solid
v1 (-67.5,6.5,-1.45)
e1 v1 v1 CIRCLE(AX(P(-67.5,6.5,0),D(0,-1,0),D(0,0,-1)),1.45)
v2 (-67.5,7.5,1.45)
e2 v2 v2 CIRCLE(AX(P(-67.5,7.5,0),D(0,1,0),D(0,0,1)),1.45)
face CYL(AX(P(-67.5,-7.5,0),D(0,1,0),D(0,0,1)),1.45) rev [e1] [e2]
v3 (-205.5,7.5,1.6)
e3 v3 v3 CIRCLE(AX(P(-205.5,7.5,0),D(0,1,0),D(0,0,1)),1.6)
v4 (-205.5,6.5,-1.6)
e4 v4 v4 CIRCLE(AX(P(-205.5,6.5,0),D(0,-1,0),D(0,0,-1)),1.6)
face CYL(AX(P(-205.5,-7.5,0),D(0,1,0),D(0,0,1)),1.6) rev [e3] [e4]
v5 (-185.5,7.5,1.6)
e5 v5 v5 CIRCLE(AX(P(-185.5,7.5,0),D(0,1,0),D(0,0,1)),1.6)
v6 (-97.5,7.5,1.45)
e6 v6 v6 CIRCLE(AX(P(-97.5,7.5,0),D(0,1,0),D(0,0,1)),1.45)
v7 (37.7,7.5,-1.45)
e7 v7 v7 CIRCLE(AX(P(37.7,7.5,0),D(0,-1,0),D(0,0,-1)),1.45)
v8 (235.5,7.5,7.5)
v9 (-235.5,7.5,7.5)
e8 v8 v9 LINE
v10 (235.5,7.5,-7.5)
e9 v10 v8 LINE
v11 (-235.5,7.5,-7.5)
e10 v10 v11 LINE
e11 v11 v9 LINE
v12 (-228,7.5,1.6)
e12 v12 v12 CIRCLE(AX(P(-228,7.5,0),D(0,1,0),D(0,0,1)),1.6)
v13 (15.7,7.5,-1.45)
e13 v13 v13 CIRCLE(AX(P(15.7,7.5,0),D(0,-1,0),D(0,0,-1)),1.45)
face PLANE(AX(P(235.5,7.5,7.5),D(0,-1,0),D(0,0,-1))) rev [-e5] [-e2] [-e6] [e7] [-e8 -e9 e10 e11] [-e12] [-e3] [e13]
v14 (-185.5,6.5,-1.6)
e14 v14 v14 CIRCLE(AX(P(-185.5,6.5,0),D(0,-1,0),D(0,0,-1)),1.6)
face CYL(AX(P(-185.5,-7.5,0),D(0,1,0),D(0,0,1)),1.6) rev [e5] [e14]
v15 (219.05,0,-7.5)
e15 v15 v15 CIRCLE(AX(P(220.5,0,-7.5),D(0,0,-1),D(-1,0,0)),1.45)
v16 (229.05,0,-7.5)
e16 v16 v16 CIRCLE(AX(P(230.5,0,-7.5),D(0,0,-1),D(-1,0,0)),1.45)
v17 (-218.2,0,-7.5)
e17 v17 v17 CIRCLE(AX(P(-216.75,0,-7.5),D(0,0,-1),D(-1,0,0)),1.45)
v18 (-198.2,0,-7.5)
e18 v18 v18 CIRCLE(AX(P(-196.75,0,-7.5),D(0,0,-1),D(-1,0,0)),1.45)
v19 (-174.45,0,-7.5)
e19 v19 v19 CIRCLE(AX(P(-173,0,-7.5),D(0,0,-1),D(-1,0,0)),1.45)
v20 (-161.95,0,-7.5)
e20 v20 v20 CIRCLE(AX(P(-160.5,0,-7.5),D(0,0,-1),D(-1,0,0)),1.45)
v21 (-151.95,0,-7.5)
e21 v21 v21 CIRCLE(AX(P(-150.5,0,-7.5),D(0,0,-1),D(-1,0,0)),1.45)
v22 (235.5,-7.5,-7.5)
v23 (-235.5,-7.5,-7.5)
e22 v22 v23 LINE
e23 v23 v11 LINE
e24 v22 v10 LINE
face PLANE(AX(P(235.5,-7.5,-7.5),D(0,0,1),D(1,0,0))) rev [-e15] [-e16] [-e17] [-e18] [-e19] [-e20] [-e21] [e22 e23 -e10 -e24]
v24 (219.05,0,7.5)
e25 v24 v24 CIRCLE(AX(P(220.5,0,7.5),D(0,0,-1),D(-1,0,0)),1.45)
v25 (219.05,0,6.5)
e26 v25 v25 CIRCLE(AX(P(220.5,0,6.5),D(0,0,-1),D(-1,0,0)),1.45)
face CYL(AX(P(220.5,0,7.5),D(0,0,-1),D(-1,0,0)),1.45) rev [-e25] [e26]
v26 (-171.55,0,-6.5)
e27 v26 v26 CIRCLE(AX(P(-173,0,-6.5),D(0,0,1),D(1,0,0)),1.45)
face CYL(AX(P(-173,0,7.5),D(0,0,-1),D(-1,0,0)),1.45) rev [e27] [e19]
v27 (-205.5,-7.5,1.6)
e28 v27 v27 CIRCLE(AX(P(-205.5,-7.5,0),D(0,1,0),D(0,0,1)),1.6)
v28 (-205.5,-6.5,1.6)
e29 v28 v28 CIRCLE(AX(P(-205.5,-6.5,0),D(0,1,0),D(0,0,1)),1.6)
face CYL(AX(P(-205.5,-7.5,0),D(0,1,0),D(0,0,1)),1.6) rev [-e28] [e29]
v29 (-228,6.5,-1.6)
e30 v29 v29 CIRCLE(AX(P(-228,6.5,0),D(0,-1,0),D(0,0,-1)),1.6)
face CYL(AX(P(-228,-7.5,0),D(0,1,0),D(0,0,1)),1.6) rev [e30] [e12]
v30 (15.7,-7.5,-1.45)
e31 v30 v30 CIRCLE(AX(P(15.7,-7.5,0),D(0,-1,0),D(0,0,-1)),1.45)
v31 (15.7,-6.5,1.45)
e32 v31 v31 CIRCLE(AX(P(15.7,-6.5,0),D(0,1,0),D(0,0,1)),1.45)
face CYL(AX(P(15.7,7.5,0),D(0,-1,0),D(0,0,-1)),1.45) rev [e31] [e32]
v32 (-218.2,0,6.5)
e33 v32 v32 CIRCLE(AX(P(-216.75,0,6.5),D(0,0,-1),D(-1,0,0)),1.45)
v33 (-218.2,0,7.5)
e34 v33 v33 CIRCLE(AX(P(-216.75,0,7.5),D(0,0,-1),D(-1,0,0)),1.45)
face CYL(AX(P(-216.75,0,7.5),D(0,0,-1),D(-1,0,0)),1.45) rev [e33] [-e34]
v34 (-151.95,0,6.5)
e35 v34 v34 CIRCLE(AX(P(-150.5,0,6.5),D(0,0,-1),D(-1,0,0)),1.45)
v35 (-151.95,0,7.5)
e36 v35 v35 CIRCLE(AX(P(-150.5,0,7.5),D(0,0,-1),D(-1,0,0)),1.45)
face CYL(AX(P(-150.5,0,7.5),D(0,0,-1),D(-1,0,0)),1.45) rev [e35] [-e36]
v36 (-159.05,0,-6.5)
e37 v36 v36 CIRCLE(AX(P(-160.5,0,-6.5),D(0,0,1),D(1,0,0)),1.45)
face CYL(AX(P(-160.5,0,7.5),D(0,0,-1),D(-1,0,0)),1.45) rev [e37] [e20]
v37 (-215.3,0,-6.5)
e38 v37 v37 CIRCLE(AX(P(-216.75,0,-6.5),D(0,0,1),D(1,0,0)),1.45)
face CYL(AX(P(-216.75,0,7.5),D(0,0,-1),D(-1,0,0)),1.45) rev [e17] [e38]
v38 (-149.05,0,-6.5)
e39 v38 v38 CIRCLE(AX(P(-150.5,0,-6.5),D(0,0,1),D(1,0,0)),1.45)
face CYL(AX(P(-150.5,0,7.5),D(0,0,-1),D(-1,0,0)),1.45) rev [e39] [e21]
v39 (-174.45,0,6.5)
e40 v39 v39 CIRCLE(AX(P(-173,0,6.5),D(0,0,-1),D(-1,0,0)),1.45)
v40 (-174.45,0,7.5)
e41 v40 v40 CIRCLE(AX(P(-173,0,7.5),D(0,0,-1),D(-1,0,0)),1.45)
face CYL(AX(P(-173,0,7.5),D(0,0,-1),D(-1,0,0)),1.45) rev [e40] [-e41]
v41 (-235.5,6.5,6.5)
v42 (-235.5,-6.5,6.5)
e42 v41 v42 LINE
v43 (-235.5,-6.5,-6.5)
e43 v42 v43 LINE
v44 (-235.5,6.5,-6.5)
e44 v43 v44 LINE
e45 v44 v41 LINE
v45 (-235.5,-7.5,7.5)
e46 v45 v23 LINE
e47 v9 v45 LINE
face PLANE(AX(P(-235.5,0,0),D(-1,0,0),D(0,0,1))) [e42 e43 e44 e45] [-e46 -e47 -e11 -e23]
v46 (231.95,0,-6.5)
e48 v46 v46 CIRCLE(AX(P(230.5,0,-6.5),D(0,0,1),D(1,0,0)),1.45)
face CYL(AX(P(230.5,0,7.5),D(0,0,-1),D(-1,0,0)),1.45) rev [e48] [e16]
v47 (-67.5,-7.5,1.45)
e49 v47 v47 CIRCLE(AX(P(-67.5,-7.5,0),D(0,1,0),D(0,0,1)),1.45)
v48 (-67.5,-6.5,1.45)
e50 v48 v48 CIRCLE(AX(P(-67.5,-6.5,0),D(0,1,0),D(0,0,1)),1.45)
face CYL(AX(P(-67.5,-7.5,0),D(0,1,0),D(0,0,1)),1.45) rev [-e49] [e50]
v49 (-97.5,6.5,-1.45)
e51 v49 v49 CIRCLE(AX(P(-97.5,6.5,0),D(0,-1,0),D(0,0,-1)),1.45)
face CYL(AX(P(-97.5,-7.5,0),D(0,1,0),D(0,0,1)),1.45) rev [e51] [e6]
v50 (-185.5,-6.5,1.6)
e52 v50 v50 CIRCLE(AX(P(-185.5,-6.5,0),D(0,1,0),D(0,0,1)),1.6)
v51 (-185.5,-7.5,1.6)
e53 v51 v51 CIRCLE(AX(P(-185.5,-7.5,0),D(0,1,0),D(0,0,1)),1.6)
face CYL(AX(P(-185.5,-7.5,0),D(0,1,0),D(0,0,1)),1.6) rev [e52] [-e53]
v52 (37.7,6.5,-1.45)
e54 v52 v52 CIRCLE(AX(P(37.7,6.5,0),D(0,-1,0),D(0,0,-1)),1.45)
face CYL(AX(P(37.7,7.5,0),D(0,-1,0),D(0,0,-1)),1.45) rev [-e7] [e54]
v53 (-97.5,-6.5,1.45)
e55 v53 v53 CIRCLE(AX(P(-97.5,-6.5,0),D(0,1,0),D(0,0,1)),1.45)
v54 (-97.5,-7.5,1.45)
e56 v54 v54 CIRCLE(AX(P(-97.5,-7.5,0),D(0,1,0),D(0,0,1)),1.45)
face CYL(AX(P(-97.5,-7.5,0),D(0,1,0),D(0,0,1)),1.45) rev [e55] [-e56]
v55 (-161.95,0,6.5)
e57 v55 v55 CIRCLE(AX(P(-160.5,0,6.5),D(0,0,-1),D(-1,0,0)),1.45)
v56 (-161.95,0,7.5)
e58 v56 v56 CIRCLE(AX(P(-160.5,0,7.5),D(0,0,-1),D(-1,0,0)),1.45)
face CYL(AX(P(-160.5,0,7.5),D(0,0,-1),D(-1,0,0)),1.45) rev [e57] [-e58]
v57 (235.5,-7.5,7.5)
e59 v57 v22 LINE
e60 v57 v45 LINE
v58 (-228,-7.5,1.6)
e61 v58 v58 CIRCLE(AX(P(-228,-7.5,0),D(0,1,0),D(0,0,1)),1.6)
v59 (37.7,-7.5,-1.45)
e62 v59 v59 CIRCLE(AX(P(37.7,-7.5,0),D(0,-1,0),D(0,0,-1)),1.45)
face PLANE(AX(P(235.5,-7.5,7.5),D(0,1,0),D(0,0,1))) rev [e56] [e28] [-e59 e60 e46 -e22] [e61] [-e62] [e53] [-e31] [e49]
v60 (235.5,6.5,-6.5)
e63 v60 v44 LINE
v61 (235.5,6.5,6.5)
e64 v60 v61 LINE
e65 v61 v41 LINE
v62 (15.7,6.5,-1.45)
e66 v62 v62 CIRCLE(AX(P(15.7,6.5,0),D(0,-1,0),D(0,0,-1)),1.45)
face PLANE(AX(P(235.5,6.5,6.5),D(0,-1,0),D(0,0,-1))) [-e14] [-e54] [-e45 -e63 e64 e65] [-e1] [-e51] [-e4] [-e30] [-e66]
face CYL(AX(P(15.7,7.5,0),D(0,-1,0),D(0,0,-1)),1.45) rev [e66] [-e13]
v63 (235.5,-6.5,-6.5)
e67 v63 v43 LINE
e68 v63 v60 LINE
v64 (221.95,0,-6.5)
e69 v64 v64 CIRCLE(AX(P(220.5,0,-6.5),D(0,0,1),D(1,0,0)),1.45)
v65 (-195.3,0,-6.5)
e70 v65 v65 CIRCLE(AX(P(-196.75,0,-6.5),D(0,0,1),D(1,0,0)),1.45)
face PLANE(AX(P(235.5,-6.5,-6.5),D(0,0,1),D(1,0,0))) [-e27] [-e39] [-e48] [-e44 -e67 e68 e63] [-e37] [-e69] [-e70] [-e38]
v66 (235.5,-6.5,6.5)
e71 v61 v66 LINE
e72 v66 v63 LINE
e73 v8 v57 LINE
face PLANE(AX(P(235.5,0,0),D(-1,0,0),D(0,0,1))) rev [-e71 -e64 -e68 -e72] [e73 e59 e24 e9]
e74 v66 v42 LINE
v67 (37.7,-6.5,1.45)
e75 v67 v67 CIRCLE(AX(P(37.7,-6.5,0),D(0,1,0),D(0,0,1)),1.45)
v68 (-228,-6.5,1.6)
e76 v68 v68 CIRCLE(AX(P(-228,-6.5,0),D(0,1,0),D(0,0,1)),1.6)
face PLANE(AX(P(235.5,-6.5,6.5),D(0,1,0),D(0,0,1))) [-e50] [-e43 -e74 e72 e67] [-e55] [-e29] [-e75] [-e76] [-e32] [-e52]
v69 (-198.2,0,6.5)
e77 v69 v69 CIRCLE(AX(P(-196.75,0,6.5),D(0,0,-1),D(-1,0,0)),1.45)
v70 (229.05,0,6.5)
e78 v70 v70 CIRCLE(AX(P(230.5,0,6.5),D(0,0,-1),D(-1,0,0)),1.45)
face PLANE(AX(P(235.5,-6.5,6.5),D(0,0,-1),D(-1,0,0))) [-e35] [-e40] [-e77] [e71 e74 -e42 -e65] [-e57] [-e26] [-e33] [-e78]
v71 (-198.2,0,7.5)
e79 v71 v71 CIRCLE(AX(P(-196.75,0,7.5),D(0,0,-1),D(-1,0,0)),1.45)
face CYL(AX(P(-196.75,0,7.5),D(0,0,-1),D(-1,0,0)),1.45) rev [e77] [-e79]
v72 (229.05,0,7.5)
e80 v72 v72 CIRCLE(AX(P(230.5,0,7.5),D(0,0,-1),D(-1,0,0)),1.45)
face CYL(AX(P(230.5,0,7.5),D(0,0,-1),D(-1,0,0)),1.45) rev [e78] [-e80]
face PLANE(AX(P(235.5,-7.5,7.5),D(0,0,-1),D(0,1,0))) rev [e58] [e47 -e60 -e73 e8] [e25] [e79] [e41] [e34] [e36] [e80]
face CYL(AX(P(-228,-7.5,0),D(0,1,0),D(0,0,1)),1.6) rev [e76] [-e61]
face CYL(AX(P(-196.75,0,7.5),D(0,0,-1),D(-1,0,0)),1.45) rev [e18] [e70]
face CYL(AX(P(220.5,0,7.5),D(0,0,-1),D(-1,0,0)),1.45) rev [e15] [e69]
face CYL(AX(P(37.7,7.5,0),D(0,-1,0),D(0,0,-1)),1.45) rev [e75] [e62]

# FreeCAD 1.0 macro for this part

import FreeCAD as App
import Part
import Sketcher

V = App.Vector
Q = App.Units.Quantity

doc = App.newDocument("Part")
body = doc.addObject("PartDesign::Body", "Body")

# Sketch on YZ plane
sketch1 = doc.addObject("Sketcher::SketchObject", "Sketch")
body.addObject(sketch1)
sketch1.AttachmentSupport = (doc.YZ_Plane, [""])
sketch1.MapMode = "FlatFace"
sketch1.AttachmentOffset = App.Placement(V(0, 0, -235.5), App.Rotation())
sketch1.addGeometry([
    Part.LineSegment(V(7.5, 7.5, 0), V(-7.5, 7.5, 0)),  # 0
    Part.LineSegment(V(-7.5, 7.5, 0), V(-7.5, -7.5, 0)),  # 1
    Part.LineSegment(V(-7.5, -7.5, 0), V(7.5, -7.5, 0)),  # 2
    Part.LineSegment(V(7.5, -7.5, 0), V(7.5, 7.5, 0)),  # 3
    Part.LineSegment(V(-6.5, -6.5, 0), V(-6.5, 6.5, 0)),  # 4
    Part.LineSegment(V(-6.5, 6.5, 0), V(6.5, 6.5, 0)),  # 5
    Part.LineSegment(V(6.5, 6.5, 0), V(6.5, -6.5, 0)),  # 6
    Part.LineSegment(V(6.5, -6.5, 0), V(-6.5, -6.5, 0)),  # 7
], False)
sketch1.addConstraint([
    Sketcher.Constraint("Coincident", 0, 2, 1, 1),
    Sketcher.Constraint("Coincident", 1, 2, 2, 1),
    Sketcher.Constraint("Coincident", 2, 2, 3, 1),
    Sketcher.Constraint("Coincident", 3, 2, 0, 1),
    Sketcher.Constraint("Coincident", 4, 2, 5, 1),
    Sketcher.Constraint("Coincident", 5, 2, 6, 1),
    Sketcher.Constraint("Coincident", 6, 2, 7, 1),
    Sketcher.Constraint("Coincident", 7, 2, 4, 1),
    Sketcher.Constraint("Horizontal", 0),
    Sketcher.Constraint("Vertical", 1),
    Sketcher.Constraint("Horizontal", 2),
    Sketcher.Constraint("Vertical", 3),
    Sketcher.Constraint("Vertical", 4),
    Sketcher.Constraint("Horizontal", 5),
    Sketcher.Constraint("Vertical", 6),
    Sketcher.Constraint("Horizontal", 7),
    Sketcher.Constraint("Symmetric", 0, 2, 2, 2, -1, 1),
    Sketcher.Constraint("Symmetric", 4, 2, 6, 2, -1, 1),
    Sketcher.Constraint("Equal", 2, 1),
    Sketcher.Constraint("Equal", 7, 4),
    Sketcher.Constraint("DistanceX", 0, 2, 0, 1, Q("15 mm")),
    Sketcher.Constraint("DistanceX", 5, 1, 5, 2, Q("13 mm")),
])
pad1 = doc.addObject("PartDesign::Pad", "Pad")
body.addObject(pad1)
pad1.Profile = sketch1
pad1.Length = 471

# Sketch on XZ plane
sketch2 = doc.addObject("Sketcher::SketchObject", "Sketch001")
body.addObject(sketch2)
sketch2.AttachmentSupport = (doc.XZ_Plane, [""])
sketch2.MapMode = "FlatFace"
sketch2.AttachmentOffset = App.Placement(V(0, 0, -7.5), App.Rotation())
sketch2.addGeometry([
    Part.Circle(V(-205.5, 0, 0), V(0, 0, 1), 1.6),
    Part.Circle(V(-185.5, 0, 0), V(0, 0, 1), 1.6),
    Part.Circle(V(-228, 0, 0), V(0, 0, 1), 1.6),
], False)
sketch2.addConstraint([
    Sketcher.Constraint("Equal", 0, 1),
    Sketcher.Constraint("Equal", 1, 2),
    Sketcher.Constraint("PointOnObject", 0, 3, -1),
    Sketcher.Constraint("PointOnObject", 1, 3, -1),
    Sketcher.Constraint("PointOnObject", 2, 3, -1),
    Sketcher.Constraint("Diameter", 0, Q("3.2 mm")),
    Sketcher.Constraint("DistanceX", 2, 3, -1, 1, Q("228 mm")),
    Sketcher.Constraint("DistanceX", 0, 3, 1, 3, Q("20 mm")),
    Sketcher.Constraint("DistanceX", 0, 3, -1, 1, Q("205.5 mm")),
])
pocket1 = doc.addObject("PartDesign::Pocket", "Pocket")
body.addObject(pocket1)
pocket1.Profile = sketch2
pocket1.Type = "ThroughAll"
pocket1.Reversed = True

# Sketch on XZ plane
sketch3 = doc.addObject("Sketcher::SketchObject", "Sketch002")
body.addObject(sketch3)
sketch3.AttachmentSupport = (doc.XZ_Plane, [""])
sketch3.MapMode = "FlatFace"
sketch3.AttachmentOffset = App.Placement(V(0, 0, -7.5), App.Rotation())
sketch3.addGeometry([
    Part.Circle(V(-97.5, 0, 0), V(0, 0, 1), 1.45),
    Part.Circle(V(-67.5, 0, 0), V(0, 0, 1), 1.45),
], False)
sketch3.addConstraint([
    Sketcher.Constraint("Equal", 0, 1),
    Sketcher.Constraint("PointOnObject", 0, 3, -1),
    Sketcher.Constraint("PointOnObject", 1, 3, -1),
    Sketcher.Constraint("Diameter", 0, Q("2.9 mm")),
    Sketcher.Constraint("DistanceX", 0, 3, 1, 3, Q("30 mm")),
    Sketcher.Constraint("DistanceX", 0, 3, -1, 1, Q("97.5 mm")),
])
pocket2 = doc.addObject("PartDesign::Pocket", "Pocket001")
body.addObject(pocket2)
pocket2.Profile = sketch3
pocket2.Type = "ThroughAll"
pocket2.Reversed = True

# Sketch on XY plane
sketch4 = doc.addObject("Sketcher::SketchObject", "Sketch003")
body.addObject(sketch4)
sketch4.AttachmentSupport = (doc.XY_Plane, [""])
sketch4.MapMode = "FlatFace"
sketch4.AttachmentOffset = App.Placement(V(0, 0, -7.5), App.Rotation())
sketch4.addGeometry([
    Part.Circle(V(-216.75, 0, 0), V(0, 0, 1), 1.45),
    Part.Circle(V(-196.75, 0, 0), V(0, 0, 1), 1.45),
], False)
sketch4.addConstraint([
    Sketcher.Constraint("Equal", 0, 1),
    Sketcher.Constraint("PointOnObject", 0, 3, -1),
    Sketcher.Constraint("PointOnObject", 1, 3, -1),
    Sketcher.Constraint("Diameter", 0, Q("2.9 mm")),
    Sketcher.Constraint("DistanceX", 0, 3, 1, 3, Q("20 mm")),
    Sketcher.Constraint("DistanceX", 0, 3, -1, 1, Q("216.75 mm")),
])
pocket3 = doc.addObject("PartDesign::Pocket", "Pocket002")
body.addObject(pocket3)
pocket3.Profile = sketch4
pocket3.Type = "ThroughAll"
pocket3.Reversed = True

# Sketch on XY plane
sketch5 = doc.addObject("Sketcher::SketchObject", "Sketch004")
body.addObject(sketch5)
sketch5.AttachmentSupport = (doc.XY_Plane, [""])
sketch5.MapMode = "FlatFace"
sketch5.AttachmentOffset = App.Placement(V(0, 0, -7.5), App.Rotation())
sketch5.addGeometry([
    Part.Circle(V(-173, 0, 0), V(0, 0, 1), 1.45),
    Part.Circle(V(-160.5, 0, 0), V(0, 0, 1), 1.45),
    Part.Circle(V(-150.5, 0, 0), V(0, 0, 1), 1.45),
], False)
sketch5.addConstraint([
    Sketcher.Constraint("Equal", 0, 1),
    Sketcher.Constraint("Equal", 1, 2),
    Sketcher.Constraint("PointOnObject", 0, 3, -1),
    Sketcher.Constraint("PointOnObject", 1, 3, -1),
    Sketcher.Constraint("PointOnObject", 2, 3, -1),
    Sketcher.Constraint("Diameter", 0, Q("2.9 mm")),
    Sketcher.Constraint("DistanceX", 0, 3, -1, 1, Q("173 mm")),
    Sketcher.Constraint("DistanceX", 1, 3, 2, 3, Q("10 mm")),
    Sketcher.Constraint("DistanceX", 1, 3, -1, 1, Q("160.5 mm")),
])
pocket4 = doc.addObject("PartDesign::Pocket", "Pocket003")
body.addObject(pocket4)
pocket4.Profile = sketch5
pocket4.Type = "ThroughAll"
pocket4.Reversed = True

# Sketch on XY plane
sketch6 = doc.addObject("Sketcher::SketchObject", "Sketch005")
body.addObject(sketch6)
sketch6.AttachmentSupport = (doc.XY_Plane, [""])
sketch6.MapMode = "FlatFace"
sketch6.AttachmentOffset = App.Placement(V(0, 0, -7.5), App.Rotation())
sketch6.addGeometry([
    Part.Circle(V(230.5, 0, 0), V(0, 0, 1), 1.45),
    Part.Circle(V(220.5, 0, 0), V(0, 0, 1), 1.45),
], False)
sketch6.addConstraint([
    Sketcher.Constraint("Equal", 0, 1),
    Sketcher.Constraint("PointOnObject", 0, 3, -1),
    Sketcher.Constraint("PointOnObject", 1, 3, -1),
    Sketcher.Constraint("Diameter", 0, Q("2.9 mm")),
    Sketcher.Constraint("DistanceX", 1, 3, 0, 3, Q("10 mm")),
    Sketcher.Constraint("DistanceX", -1, 1, 0, 3, Q("230.5 mm")),
])
pocket5 = doc.addObject("PartDesign::Pocket", "Pocket004")
body.addObject(pocket5)
pocket5.Profile = sketch6
pocket5.Type = "ThroughAll"
pocket5.Reversed = True

# Sketch on XZ plane
sketch7 = doc.addObject("Sketcher::SketchObject", "Sketch006")
body.addObject(sketch7)
sketch7.AttachmentSupport = (doc.XZ_Plane, [""])
sketch7.MapMode = "FlatFace"
sketch7.AttachmentOffset = App.Placement(V(0, 0, 7.5), App.Rotation())
sketch7.addGeometry([
    Part.Circle(V(15.7, 0, 0), V(0, 0, 1), 1.45),
    Part.Circle(V(37.7, 0, 0), V(0, 0, 1), 1.45),
], False)
sketch7.addConstraint([
    Sketcher.Constraint("Equal", 0, 1),
    Sketcher.Constraint("PointOnObject", 0, 3, -1),
    Sketcher.Constraint("PointOnObject", 1, 3, -1),
    Sketcher.Constraint("Diameter", 0, Q("2.9 mm")),
    Sketcher.Constraint("DistanceX", 0, 3, 1, 3, Q("22 mm")),
    Sketcher.Constraint("DistanceX", -1, 1, 0, 3, Q("15.7 mm")),
])
pocket6 = doc.addObject("PartDesign::Pocket", "Pocket005")
body.addObject(pocket6)
pocket6.Profile = sketch7
pocket6.Type = "ThroughAll"

doc.recompute()
